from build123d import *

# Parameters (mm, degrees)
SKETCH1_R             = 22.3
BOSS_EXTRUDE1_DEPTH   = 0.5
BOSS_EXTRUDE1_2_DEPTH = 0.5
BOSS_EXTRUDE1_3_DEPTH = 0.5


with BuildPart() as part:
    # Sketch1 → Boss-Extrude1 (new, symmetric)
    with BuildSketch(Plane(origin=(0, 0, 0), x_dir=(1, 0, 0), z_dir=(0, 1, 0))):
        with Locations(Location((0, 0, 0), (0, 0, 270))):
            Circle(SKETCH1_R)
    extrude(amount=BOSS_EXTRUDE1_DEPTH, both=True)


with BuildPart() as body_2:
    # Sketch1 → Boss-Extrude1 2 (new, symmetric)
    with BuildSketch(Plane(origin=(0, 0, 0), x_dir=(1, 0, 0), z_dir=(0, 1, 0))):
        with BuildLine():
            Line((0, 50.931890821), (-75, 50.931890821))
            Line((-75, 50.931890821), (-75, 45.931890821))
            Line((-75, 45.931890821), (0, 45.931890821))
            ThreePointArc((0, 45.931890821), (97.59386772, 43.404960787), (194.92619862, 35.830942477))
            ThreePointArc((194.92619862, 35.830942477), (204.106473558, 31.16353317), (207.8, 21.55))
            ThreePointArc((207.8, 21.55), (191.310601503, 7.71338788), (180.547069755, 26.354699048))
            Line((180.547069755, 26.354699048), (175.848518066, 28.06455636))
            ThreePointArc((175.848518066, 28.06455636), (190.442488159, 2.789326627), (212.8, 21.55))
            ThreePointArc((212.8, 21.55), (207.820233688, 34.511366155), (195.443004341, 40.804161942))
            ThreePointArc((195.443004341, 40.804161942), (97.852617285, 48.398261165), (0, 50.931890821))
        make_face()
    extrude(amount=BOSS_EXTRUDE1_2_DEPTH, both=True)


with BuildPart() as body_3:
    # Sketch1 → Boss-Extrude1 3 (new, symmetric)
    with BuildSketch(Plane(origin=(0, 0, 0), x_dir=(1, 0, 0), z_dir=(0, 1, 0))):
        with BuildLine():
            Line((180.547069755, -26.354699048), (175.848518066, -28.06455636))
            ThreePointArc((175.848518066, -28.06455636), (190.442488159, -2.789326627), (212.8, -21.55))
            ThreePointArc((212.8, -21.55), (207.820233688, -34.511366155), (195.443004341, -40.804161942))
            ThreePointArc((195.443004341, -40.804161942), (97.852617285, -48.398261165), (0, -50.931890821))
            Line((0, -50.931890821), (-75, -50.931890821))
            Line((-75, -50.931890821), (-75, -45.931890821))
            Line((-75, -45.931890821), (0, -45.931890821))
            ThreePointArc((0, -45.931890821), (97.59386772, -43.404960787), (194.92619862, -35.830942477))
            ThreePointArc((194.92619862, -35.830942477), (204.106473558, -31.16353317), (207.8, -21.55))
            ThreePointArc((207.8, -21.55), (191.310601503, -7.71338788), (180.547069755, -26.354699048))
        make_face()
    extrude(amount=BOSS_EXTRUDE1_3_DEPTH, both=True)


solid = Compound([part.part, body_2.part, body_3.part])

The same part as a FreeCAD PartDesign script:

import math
import FreeCAD as App
import Part
import Sketcher
from FreeCAD import Vector

doc = App.newDocument("Part")
body = doc.addObject("PartDesign::Body", "Body")

# Sketch on XZ plane
sketch1 = body.newObject("Sketcher::SketchObject", "Sketch")
sketch1.AttachmentSupport = (doc.getObject("XZ_Plane"), [""])
sketch1.MapMode = "FlatFace"
sketch1.addGeometry(Part.Circle(Vector(0, 0, 0), Vector(0, 0, 1), 22), False)
sketch1.addConstraint([
    Sketcher.Constraint("Coincident", 0, 3, -1, 1),
    Sketcher.Constraint("Diameter", 0, 44.6),
])
pad1 = body.newObject("PartDesign::Pad", "Pad")
pad1.Profile = sketch1
pad1.Length = 1
pad1.Midplane = True
body2 = doc.addObject("PartDesign::Body", "Body001")

# Sketch on XZ plane
sketch2 = body2.newObject("Sketcher::SketchObject", "Sketch001")
sketch2.AttachmentSupport = (doc.getObject("XZ_Plane001"), [""])
sketch2.MapMode = "FlatFace"
sketch2.addGeometry([
    Part.LineSegment(Vector(0, -51, 0), Vector(-75, -51, 0)),  # 0
    Part.LineSegment(Vector(-75, -51, 0), Vector(-75, -46, 0)),  # 1
    Part.LineSegment(Vector(-75, -46, 0), Vector(0, -46, 0)),  # 2
    Part.ArcOfCircle(Part.Circle(Vector(0, 1840, 0), Vector(0, 0, 1), 1886), math.radians(-90), math.radians(-84.07)),  # 3
    Part.ArcOfCircle(Part.Circle(Vector(193, -22, 0), Vector(0, 0, 1), 14), math.radians(-84), math.radians(0)),  # 4
    Part.ArcOfCircle(Part.Circle(Vector(194, -22, 0), Vector(0, 0, 1), 14), math.radians(0), math.radians(200)),  # 5
    Part.LineSegment(Vector(181, -26, 0), Vector(176, -28, 0)),  # 6
    Part.ArcOfCircle(Part.Circle(Vector(194, -22, 0), Vector(0, 0, 1), 19), math.radians(0), math.radians(200)),  # 7
    Part.ArcOfCircle(Part.Circle(Vector(193, -22, 0), Vector(0, 0, 1), 19), math.radians(-84), math.radians(0)),  # 8
    Part.ArcOfCircle(Part.Circle(Vector(0, 1840, 0), Vector(0, 0, 1), 1891), math.radians(-90), math.radians(-84.07)),  # 9
], False)
sketch2.addConstraint([
    Sketcher.Constraint("Coincident", 0, 2, 1, 1),
    Sketcher.Constraint("Coincident", 1, 2, 2, 1),
    Sketcher.Constraint("Tangent", 2, 2, 3, 1),
    Sketcher.Constraint("Tangent", 3, 2, 4, 1),
    Sketcher.Constraint("Tangent", 4, 2, 5, 1),
    Sketcher.Constraint("Coincident", 5, 2, 6, 1),
    Sketcher.Constraint("Coincident", 6, 2, 7, 2),
    Sketcher.Constraint("Tangent", 7, 1, 8, 2),
    Sketcher.Constraint("Tangent", 8, 1, 9, 2),
    Sketcher.Constraint("Tangent", 9, 1, 0, 1),
    Sketcher.Constraint("Horizontal", 0),
    Sketcher.Constraint("Vertical", 1),
    Sketcher.Constraint("Horizontal", 2),
    Sketcher.Constraint("Coincident", 7, 3, 5, 3),
    Sketcher.Constraint("Coincident", 8, 3, 4, 3),
    Sketcher.Constraint("Coincident", 9, 3, 3, 3),
    Sketcher.Constraint("PointOnObject", 3, 3, -2),
    Sketcher.Constraint("Horizontal", 4, 3, 5, 3),
    Sketcher.Constraint("DistanceX", 0, 2, 0, 1, 75.0),
    Sketcher.Constraint("DistanceY", 1, 1, 1, 2, 5.0),
    Sketcher.Constraint("Radius", 5, 14.05),
    Sketcher.Constraint("DistanceX", -1, 1, 4, 2, 207.8),
    Sketcher.Constraint("DistanceY", 4, 3, -1, 1, 21.55),
    Sketcher.Constraint("Radius", 3, 1885.875008),
    Sketcher.Constraint("Radius", 4, 14.357845),
    Sketcher.Constraint("DistanceY", 5, 2, -1, 1, 26.354699),
    Sketcher.Constraint("DistanceX", -1, 1, 6, 2, 175.848518),
])
pad2 = body2.newObject("PartDesign::Pad", "Pad001")
pad2.Profile = sketch2
pad2.Length = 1
pad2.Midplane = True
body3 = doc.addObject("PartDesign::Body", "Body002")

# Sketch on XZ plane
sketch3 = body3.newObject("Sketcher::SketchObject", "Sketch002")
sketch3.AttachmentSupport = (doc.getObject("XZ_Plane002"), [""])
sketch3.MapMode = "FlatFace"
sketch3.addGeometry([
    Part.LineSegment(Vector(176, 28, 0), Vector(181, 26, 0)),  # 0
    Part.ArcOfCircle(Part.Circle(Vector(194, 22, 0), Vector(0, 0, 1), 14), math.radians(160), math.radians(360)),  # 1
    Part.ArcOfCircle(Part.Circle(Vector(193, 22, 0), Vector(0, 0, 1), 14), math.radians(0), math.radians(84)),  # 2
    Part.ArcOfCircle(Part.Circle(Vector(0, -1840, 0), Vector(0, 0, 1), 1886), math.radians(84.07), math.radians(90)),  # 3
    Part.LineSegment(Vector(0, 46, 0), Vector(-75, 46, 0)),  # 4
    Part.LineSegment(Vector(-75, 46, 0), Vector(-75, 51, 0)),  # 5
    Part.LineSegment(Vector(-75, 51, 0), Vector(0, 51, 0)),  # 6
    Part.ArcOfCircle(Part.Circle(Vector(0, -1840, 0), Vector(0, 0, 1), 1891), math.radians(84.07), math.radians(90)),  # 7
    Part.ArcOfCircle(Part.Circle(Vector(193, 22, 0), Vector(0, 0, 1), 19), math.radians(0), math.radians(84)),  # 8
    Part.ArcOfCircle(Part.Circle(Vector(194, 22, 0), Vector(0, 0, 1), 19), math.radians(160), math.radians(360)),  # 9
], False)
sketch3.addConstraint([
    Sketcher.Constraint("Coincident", 0, 2, 1, 1),
    Sketcher.Constraint("Tangent", 1, 2, 2, 1),
    Sketcher.Constraint("Tangent", 2, 2, 3, 1),
    Sketcher.Constraint("Tangent", 3, 2, 4, 1),
    Sketcher.Constraint("Coincident", 4, 2, 5, 1),
    Sketcher.Constraint("Coincident", 5, 2, 6, 1),
    Sketcher.Constraint("Tangent", 6, 2, 7, 2),
    Sketcher.Constraint("Tangent", 7, 1, 8, 2),
    Sketcher.Constraint("Tangent", 8, 1, 9, 2),
    Sketcher.Constraint("Coincident", 9, 1, 0, 1),
    Sketcher.Constraint("Horizontal", 4),
    Sketcher.Constraint("Vertical", 5),
    Sketcher.Constraint("Horizontal", 6),
    Sketcher.Constraint("Coincident", 7, 3, 3, 3),
    Sketcher.Constraint("Coincident", 8, 3, 2, 3),
    Sketcher.Constraint("Coincident", 9, 3, 1, 3),
    Sketcher.Constraint("PointOnObject", 3, 3, -2),
    Sketcher.Constraint("Horizontal", 1, 3, 2, 3),
    Sketcher.Constraint("DistanceX", 4, 2, 4, 1, 75.0),
    Sketcher.Constraint("DistanceY", 5, 1, 5, 2, 5.0),
    Sketcher.Constraint("Radius", 1, 14.05),
    Sketcher.Constraint("DistanceX", -1, 1, 1, 2, 207.8),
    Sketcher.Constraint("DistanceY", -1, 1, 1, 3, 21.55),
    Sketcher.Constraint("Radius", 2, 14.357845),
    Sketcher.Constraint("Radius", 3, 1885.875008),
    Sketcher.Constraint("DistanceY", -1, 1, 0, 2, 26.354699),
    Sketcher.Constraint("DistanceX", -1, 1, 9, 1, 175.848518),
])
pad3 = body3.newObject("PartDesign::Pad", "Pad002")
pad3.Profile = sketch3
pad3.Length = 1
pad3.Midplane = True

doc.recompute()
